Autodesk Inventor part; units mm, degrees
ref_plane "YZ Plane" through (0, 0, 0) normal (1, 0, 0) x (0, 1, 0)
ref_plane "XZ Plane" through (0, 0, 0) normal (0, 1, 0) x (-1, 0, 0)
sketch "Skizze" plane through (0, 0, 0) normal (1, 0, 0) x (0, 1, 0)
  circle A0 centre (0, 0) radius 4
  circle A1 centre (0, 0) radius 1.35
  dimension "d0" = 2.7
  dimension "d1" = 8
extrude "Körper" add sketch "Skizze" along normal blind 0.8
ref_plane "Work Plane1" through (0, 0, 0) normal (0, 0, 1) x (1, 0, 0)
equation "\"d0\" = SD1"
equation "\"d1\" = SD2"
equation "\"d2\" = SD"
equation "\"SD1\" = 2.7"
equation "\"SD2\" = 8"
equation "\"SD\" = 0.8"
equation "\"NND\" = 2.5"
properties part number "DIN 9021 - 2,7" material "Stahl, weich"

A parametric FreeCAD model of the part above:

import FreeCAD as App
import Part
import Sketcher

V = App.Vector

doc = App.newDocument("Part")
params = doc.addObject("Spreadsheet::Sheet", "Params")
for row, (alias, value) in enumerate([
    ("sketch1_diameter", "8 mm"),
    ("sketch1_diameter2", "2.7 mm"),
    ("pad1_length", "0.8 mm"),
], start=1):
    params.set(f"A{row}", alias)
    params.set(f"B{row}", "=" + value)
    params.setAlias(f"B{row}", alias)

body = doc.addObject("PartDesign::Body", "Body")

sketch1 = body.newObject("Sketcher::SketchObject", "Sketch")
sketch1.AttachmentSupport = (doc.getObject("YZ_Plane"), [""])
sketch1.MapMode = "FlatFace"
sketch1.addGeometry([
    Part.Circle(V(0, 0, 0), V(0, 0, 1), 4),
    Part.Circle(V(0, 0, 0), V(0, 0, 1), 1.4),
], False)
sketch1.addConstraint([
    Sketcher.Constraint("Coincident", 0, 3, -1, 1),
    Sketcher.Constraint("Coincident", 1, 3, -1, 1),
    Sketcher.Constraint("Diameter", 0, 8.0),
    Sketcher.Constraint("Diameter", 1, 2.7),
])
sketch1.setExpression("Constraints[2]", "Params.sketch1_diameter")
sketch1.setExpression("Constraints[3]", "Params.sketch1_diameter2")
pad1 = body.newObject("PartDesign::Pad", "Pad")
pad1.Profile = sketch1
pad1.setExpression("Length", "Params.pad1_length")

doc.recompute()
